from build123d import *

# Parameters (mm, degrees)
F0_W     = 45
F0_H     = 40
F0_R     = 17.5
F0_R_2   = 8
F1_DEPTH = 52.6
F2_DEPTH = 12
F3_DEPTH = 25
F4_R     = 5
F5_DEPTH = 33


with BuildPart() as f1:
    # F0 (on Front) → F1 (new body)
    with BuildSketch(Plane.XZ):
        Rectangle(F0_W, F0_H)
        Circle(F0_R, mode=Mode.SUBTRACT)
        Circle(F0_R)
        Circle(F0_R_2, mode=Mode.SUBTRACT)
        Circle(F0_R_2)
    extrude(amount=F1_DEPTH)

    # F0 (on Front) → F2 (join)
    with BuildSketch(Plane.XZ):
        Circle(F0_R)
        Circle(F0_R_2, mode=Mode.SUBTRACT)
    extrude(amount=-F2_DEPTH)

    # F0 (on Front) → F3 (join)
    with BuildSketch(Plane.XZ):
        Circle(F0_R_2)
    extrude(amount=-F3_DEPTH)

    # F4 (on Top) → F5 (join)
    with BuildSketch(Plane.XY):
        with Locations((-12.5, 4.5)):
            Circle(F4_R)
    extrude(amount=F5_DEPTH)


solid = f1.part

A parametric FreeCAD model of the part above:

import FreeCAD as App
import Part
import Sketcher
from FreeCAD import Vector
Q = App.Units.Quantity

doc = App.newDocument("Part")
body = doc.addObject("PartDesign::Body", "Body")

# Sketch on XZ plane
sketch1 = body.newObject("Sketcher::SketchObject", "Sketch")
sketch1.AttachmentSupport = (doc.getObject("XZ_Plane"), [""])
sketch1.MapMode = "FlatFace"
sketch1.addGeometry(Part.LineSegment(Vector(-22, 20, 0), Vector(-22, -20, 0)), False)
sketch1.addGeometry(Part.LineSegment(Vector(-22, -20, 0), Vector(22, -20, 0)), False)
sketch1.addGeometry(Part.LineSegment(Vector(22, -20, 0), Vector(22, 20, 0)), False)
sketch1.addGeometry(Part.LineSegment(Vector(22, 20, 0), Vector(-22, 20, 0)), False)
sketch1.addConstraint(Sketcher.Constraint("Coincident", 0, 2, 1, 1))
sketch1.addConstraint(Sketcher.Constraint("Coincident", 1, 2, 2, 1))
sketch1.addConstraint(Sketcher.Constraint("Coincident", 2, 2, 3, 1))
sketch1.addConstraint(Sketcher.Constraint("Coincident", 3, 2, 0, 1))
sketch1.addConstraint(Sketcher.Constraint("Vertical", 0))
sketch1.addConstraint(Sketcher.Constraint("Horizontal", 1))
sketch1.addConstraint(Sketcher.Constraint("Vertical", 2))
sketch1.addConstraint(Sketcher.Constraint("Horizontal", 3))
sketch1.addConstraint(Sketcher.Constraint("Symmetric", 0, 2, 2, 2, -1, 1))
sketch1.addConstraint(Sketcher.Constraint("DistanceX", 1, 1, 1, 2, Q("45 mm")))
sketch1.addConstraint(Sketcher.Constraint("DistanceY", 0, 2, 0, 1, Q("40 mm")))
pad1 = body.newObject("PartDesign::Pad", "Pad")
pad1.Profile = sketch1
pad1.Length = 52.6

# Sketch on XZ plane
sketch2 = body.newObject("Sketcher::SketchObject", "Sketch001")
sketch2.AttachmentSupport = (doc.getObject("XZ_Plane"), [""])
sketch2.MapMode = "FlatFace"
sketch2.addGeometry(Part.Circle(Vector(0, 0, 0), Vector(0, 0, 1), 18), False)
sketch2.addGeometry(Part.Circle(Vector(0, 0, 0), Vector(0, 0, 1), 8), False)
sketch2.addConstraint(Sketcher.Constraint("Coincident", 0, 3, -1, 1))
sketch2.addConstraint(Sketcher.Constraint("Coincident", 1, 3, -1, 1))
sketch2.addConstraint(Sketcher.Constraint("Diameter", 0, Q("35 mm")))
sketch2.addConstraint(Sketcher.Constraint("Diameter", 1, Q("16 mm")))
pad2 = body.newObject("PartDesign::Pad", "Pad001")
pad2.Profile = sketch2
pad2.Length = 12
pad2.Reversed = True

# Sketch on XZ plane
sketch3 = body.newObject("Sketcher::SketchObject", "Sketch002")
sketch3.AttachmentSupport = (doc.getObject("XZ_Plane"), [""])
sketch3.MapMode = "FlatFace"
sketch3.addGeometry(Part.Circle(Vector(0, 0, 0), Vector(0, 0, 1), 8), False)
sketch3.addConstraint(Sketcher.Constraint("Coincident", 0, 3, -1, 1))
sketch3.addConstraint(Sketcher.Constraint("Diameter", 0, Q("16 mm")))
pad3 = body.newObject("PartDesign::Pad", "Pad002")
pad3.Profile = sketch3
pad3.Length = 25
pad3.Reversed = True

# Sketch on XY plane
sketch4 = body.newObject("Sketcher::SketchObject", "Sketch003")
sketch4.AttachmentSupport = (doc.getObject("XY_Plane"), [""])
sketch4.MapMode = "FlatFace"
sketch4.addGeometry(Part.Circle(Vector(-12, 4, 0), Vector(0, 0, 1), 5), False)
sketch4.addConstraint(Sketcher.Constraint("Diameter", 0, Q("10 mm")))
sketch4.addConstraint(Sketcher.Constraint("DistanceX", 0, 3, -1, 1, Q("12.5 mm")))
sketch4.addConstraint(Sketcher.Constraint("DistanceY", -1, 1, 0, 3, Q("4.5 mm")))
pad4 = body.newObject("PartDesign::Pad", "Pad003")
pad4.Profile = sketch4
pad4.Length = 33

doc.recompute()
